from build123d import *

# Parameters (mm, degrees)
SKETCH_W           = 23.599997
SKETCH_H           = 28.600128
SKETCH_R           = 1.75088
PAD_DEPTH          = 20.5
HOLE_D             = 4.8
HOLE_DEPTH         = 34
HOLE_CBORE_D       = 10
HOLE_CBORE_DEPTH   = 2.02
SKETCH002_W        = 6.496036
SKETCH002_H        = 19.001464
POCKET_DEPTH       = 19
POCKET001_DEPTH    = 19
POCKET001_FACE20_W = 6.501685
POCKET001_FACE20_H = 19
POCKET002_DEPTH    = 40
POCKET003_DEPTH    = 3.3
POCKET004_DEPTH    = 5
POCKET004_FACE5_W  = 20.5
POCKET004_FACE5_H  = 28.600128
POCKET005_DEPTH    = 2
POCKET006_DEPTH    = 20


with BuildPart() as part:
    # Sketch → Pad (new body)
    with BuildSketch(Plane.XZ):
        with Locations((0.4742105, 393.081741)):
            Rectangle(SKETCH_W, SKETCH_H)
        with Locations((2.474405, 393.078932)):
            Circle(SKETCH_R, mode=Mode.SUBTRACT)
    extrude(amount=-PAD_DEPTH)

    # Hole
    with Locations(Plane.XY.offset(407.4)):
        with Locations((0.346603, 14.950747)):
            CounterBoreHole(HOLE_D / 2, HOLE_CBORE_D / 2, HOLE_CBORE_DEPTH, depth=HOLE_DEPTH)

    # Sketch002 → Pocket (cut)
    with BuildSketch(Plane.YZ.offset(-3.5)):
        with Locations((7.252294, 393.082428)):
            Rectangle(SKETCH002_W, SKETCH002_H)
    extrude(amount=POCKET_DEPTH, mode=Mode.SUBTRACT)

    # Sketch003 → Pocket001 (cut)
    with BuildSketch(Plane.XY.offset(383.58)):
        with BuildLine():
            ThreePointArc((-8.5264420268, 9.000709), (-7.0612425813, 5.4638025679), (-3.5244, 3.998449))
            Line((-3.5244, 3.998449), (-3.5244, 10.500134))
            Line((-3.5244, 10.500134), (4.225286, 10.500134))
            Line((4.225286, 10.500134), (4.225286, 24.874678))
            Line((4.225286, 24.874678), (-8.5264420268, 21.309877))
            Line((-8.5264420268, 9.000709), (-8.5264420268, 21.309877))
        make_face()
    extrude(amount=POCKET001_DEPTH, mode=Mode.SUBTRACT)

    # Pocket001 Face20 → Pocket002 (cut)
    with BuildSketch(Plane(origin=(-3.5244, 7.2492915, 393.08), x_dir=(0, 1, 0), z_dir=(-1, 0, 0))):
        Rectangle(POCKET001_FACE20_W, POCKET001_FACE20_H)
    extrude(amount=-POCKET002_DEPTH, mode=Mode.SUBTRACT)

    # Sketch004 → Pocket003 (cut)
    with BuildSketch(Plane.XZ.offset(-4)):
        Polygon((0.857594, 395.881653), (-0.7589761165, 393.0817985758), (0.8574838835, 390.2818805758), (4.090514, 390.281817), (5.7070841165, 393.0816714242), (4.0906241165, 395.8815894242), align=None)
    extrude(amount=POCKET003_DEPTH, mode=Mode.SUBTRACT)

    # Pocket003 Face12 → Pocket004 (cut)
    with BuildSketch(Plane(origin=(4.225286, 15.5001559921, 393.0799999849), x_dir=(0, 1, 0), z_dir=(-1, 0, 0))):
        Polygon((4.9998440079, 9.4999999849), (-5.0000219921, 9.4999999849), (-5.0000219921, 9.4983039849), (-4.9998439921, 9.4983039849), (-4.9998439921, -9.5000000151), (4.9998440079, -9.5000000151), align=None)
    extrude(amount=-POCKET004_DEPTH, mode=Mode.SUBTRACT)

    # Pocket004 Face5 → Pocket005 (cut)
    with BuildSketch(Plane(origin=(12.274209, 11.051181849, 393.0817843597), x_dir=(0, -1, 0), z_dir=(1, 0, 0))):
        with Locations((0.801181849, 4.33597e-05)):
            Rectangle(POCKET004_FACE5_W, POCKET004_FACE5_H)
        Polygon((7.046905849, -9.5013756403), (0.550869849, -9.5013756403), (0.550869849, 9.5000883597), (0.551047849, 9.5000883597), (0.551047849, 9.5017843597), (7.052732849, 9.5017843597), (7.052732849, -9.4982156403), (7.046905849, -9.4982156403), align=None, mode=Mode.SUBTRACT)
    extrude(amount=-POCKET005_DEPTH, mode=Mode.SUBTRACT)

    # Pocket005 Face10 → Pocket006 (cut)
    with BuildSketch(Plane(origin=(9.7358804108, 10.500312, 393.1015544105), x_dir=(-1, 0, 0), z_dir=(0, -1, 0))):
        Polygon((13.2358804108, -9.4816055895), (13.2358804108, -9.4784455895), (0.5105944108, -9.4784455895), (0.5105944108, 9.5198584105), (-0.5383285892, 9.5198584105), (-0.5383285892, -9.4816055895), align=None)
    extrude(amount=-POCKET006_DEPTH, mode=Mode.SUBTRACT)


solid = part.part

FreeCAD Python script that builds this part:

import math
import FreeCAD as App
import Part
import Sketcher

V = App.Vector

doc = App.newDocument("Part")
params = doc.addObject("Spreadsheet::Sheet", "Params")
for row, (alias, value) in enumerate([
    ("pad1_length", "20.5 mm"),
    ("sketch2_diameter", "4.8 mm"),
    ("hole_diameter", "4.8 mm"),
    ("hole_depth", "34 mm"),
    ("hole_cbore_diameter", "10 mm"),
    ("hole_cbore_depth", "2.02 mm"),
    ("pocket1_length", "19 mm"),
    ("pocket2_length", "19 mm"),
    ("sketch5_height", "19 mm"),
    ("pocket3_length", "40 mm"),
    ("pocket4_length", "3.3 mm"),
    ("sketch7_height", "19 mm"),
    ("pocket5_length", "5 mm"),
    ("sketch8_height", "19 mm"),
    ("sketch8_width", "20.5 mm"),
    ("pocket6_length", "2 mm"),
    ("pocket7_length", "20 mm"),
], start=1):
    params.set(f"A{row}", alias)
    params.set(f"B{row}", "=" + value)
    params.setAlias(f"B{row}", alias)

body = doc.addObject("PartDesign::Body", "Body")

# Sketch on XZ plane
sketch1 = body.newObject("Sketcher::SketchObject", "Sketch")
sketch1.AttachmentSupport = (doc.getObject("XZ_Plane"), [""])
sketch1.MapMode = "FlatFace"
sketch1.addGeometry(Part.LineSegment(V(-11.3, 407.4, 0), V(-11.3, 378.8, 0)), False)
sketch1.addGeometry(Part.LineSegment(V(-11.3, 378.8, 0), V(12.3, 378.8, 0)), False)
sketch1.addGeometry(Part.LineSegment(V(12.3, 378.8, 0), V(12.3, 407.4, 0)), False)
sketch1.addGeometry(Part.LineSegment(V(12.3, 407.4, 0), V(-11.3, 407.4, 0)), False)
sketch1.addGeometry(Part.Circle(V(2.5, 393.1, 0), V(0, 0, 1), 1.8), False)
sketch1.addConstraint(Sketcher.Constraint("Coincident", 0, 2, 1, 1))
sketch1.addConstraint(Sketcher.Constraint("Coincident", 1, 2, 2, 1))
sketch1.addConstraint(Sketcher.Constraint("Coincident", 2, 2, 3, 1))
sketch1.addConstraint(Sketcher.Constraint("Coincident", 3, 2, 0, 1))
sketch1.addConstraint(Sketcher.Constraint("Vertical", 0))
sketch1.addConstraint(Sketcher.Constraint("Horizontal", 1))
sketch1.addConstraint(Sketcher.Constraint("Vertical", 2))
sketch1.addConstraint(Sketcher.Constraint("Horizontal", 3))
sketch1.addConstraint(Sketcher.Constraint("Diameter", 4, 3.50176))
sketch1.addConstraint(Sketcher.Constraint("DistanceX", 1, 1, 1, 2, 23.599997))
sketch1.addConstraint(Sketcher.Constraint("DistanceY", 0, 2, 0, 1, 28.600128))
sketch1.addConstraint(Sketcher.Constraint("DistanceY", -1, 1, 4, 3, 393.078932))
sketch1.addConstraint(Sketcher.Constraint("DistanceX", -1, 1, 1, 2, 12.274209))
sketch1.addConstraint(Sketcher.Constraint("DistanceX", -1, 1, 4, 3, 2.474405))
sketch1.addConstraint(Sketcher.Constraint("DistanceY", -1, 1, 0, 2, 378.781677))
pad1 = body.newObject("PartDesign::Pad", "Pad")
pad1.Profile = sketch1
pad1.setExpression("Length", "Params.pad1_length")
pad1.Reversed = True

# Sketch on XY plane
sketch2 = body.newObject("Sketcher::SketchObject", "Sketch001")
sketch2.AttachmentSupport = (doc.getObject("XY_Plane"), [""])
sketch2.MapMode = "FlatFace"
sketch2.AttachmentOffset = App.Placement(V(0, 0, 407.4), App.Rotation())
sketch2.addGeometry(Part.Circle(V(0.3, 15, 0), V(0, 0, 1), 2.4), False)
sketch2.addConstraint(Sketcher.Constraint("Diameter", 0, 4.8))
sketch2.addConstraint(Sketcher.Constraint("DistanceX", -1, 1, 0, 3, 0.346603))
sketch2.addConstraint(Sketcher.Constraint("DistanceY", -1, 1, 0, 3, 14.950747))
sketch2.setExpression("Constraints[0]", "Params.sketch2_diameter")
doc.recompute()
hole = body.newObject("PartDesign::Hole", "Hole")
hole.Profile = sketch2
hole.ThreadType = "None"
hole.setExpression("Diameter", "Params.hole_diameter")
hole.DepthType = "Dimension"
hole.setExpression("Depth", "Params.hole_depth")
hole.DrillPoint = "Flat"
hole.HoleCutType = "Counterbore"
hole.setExpression("HoleCutDiameter", "Params.hole_cbore_diameter")
hole.setExpression("HoleCutDepth", "Params.hole_cbore_depth")

# Sketch on YZ plane
sketch3 = body.newObject("Sketcher::SketchObject", "Sketch002")
sketch3.AttachmentSupport = (doc.getObject("YZ_Plane"), [""])
sketch3.MapMode = "FlatFace"
sketch3.AttachmentOffset = App.Placement(V(0, 0, -3.5), App.Rotation())
sketch3.addGeometry(Part.LineSegment(V(4, 403, 0), V(4, 384, 0)), False)
sketch3.addGeometry(Part.LineSegment(V(4, 384, 0), V(11, 384, 0)), False)
sketch3.addGeometry(Part.LineSegment(V(11, 384, 0), V(11, 403, 0)), False)
sketch3.addGeometry(Part.LineSegment(V(11, 403, 0), V(4, 403, 0)), False)
sketch3.addConstraint(Sketcher.Constraint("Coincident", 0, 2, 1, 1))
sketch3.addConstraint(Sketcher.Constraint("Coincident", 1, 2, 2, 1))
sketch3.addConstraint(Sketcher.Constraint("Coincident", 2, 2, 3, 1))
sketch3.addConstraint(Sketcher.Constraint("Coincident", 3, 2, 0, 1))
sketch3.addConstraint(Sketcher.Constraint("Vertical", 0))
sketch3.addConstraint(Sketcher.Constraint("Horizontal", 1))
sketch3.addConstraint(Sketcher.Constraint("Vertical", 2))
sketch3.addConstraint(Sketcher.Constraint("Horizontal", 3))
sketch3.addConstraint(Sketcher.Constraint("DistanceX", 1, 1, 1, 2, 6.496036))
sketch3.addConstraint(Sketcher.Constraint("DistanceY", 0, 2, 0, 1, 19.001464))
sketch3.addConstraint(Sketcher.Constraint("DistanceX", -1, 1, 1, 2, 10.500312))
sketch3.addConstraint(Sketcher.Constraint("DistanceY", -1, 1, 2, 2, 402.58316))
pocket1 = body.newObject("PartDesign::Pocket", "Pocket")
pocket1.Profile = sketch3
pocket1.setExpression("Length", "Params.pocket1_length")
pocket1.Reversed = True

# Sketch on XY plane
sketch4 = body.newObject("Sketcher::SketchObject", "Sketch003")
sketch4.AttachmentSupport = (doc.getObject("XY_Plane"), [""])
sketch4.MapMode = "FlatFace"
sketch4.AttachmentOffset = App.Placement(V(0, 0, 383.58), App.Rotation())
sketch4.addGeometry(Part.ArcOfCircle(Part.Circle(V(-4, 9, 0), V(0, 0, 1), 5), math.radians(-180), math.radians(-90)), False)
sketch4.addGeometry(Part.LineSegment(V(-4, 4, 0), V(-4, 11, 0)), False)
sketch4.addGeometry(Part.LineSegment(V(-4, 11, 0), V(4, 11, 0)), False)
sketch4.addGeometry(Part.LineSegment(V(4, 11, 0), V(4, 25, 0)), False)
sketch4.addGeometry(Part.LineSegment(V(4, 25, 0), V(-9, 21, 0)), False)
sketch4.addGeometry(Part.LineSegment(V(-9, 21, 0), V(-9, 9, 0)), False)
sketch4.addConstraint(Sketcher.Constraint("Coincident", 0, 2, 1, 1))
sketch4.addConstraint(Sketcher.Constraint("Coincident", 1, 2, 2, 1))
sketch4.addConstraint(Sketcher.Constraint("Coincident", 2, 2, 3, 1))
sketch4.addConstraint(Sketcher.Constraint("Coincident", 3, 2, 4, 1))
sketch4.addConstraint(Sketcher.Constraint("Coincident", 4, 2, 5, 1))
sketch4.addConstraint(Sketcher.Constraint("Coincident", 5, 2, 0, 1))
sketch4.addConstraint(Sketcher.Constraint("Vertical", 1))
sketch4.addConstraint(Sketcher.Constraint("Horizontal", 2))
sketch4.addConstraint(Sketcher.Constraint("Vertical", 3))
sketch4.addConstraint(Sketcher.Constraint("Vertical", 5))
sketch4.addConstraint(Sketcher.Constraint("Radius", 0, 5.002767))
sketch4.addConstraint(Sketcher.Constraint("DistanceX", 0, 2, -1, 1, 3.5244))
sketch4.addConstraint(Sketcher.Constraint("DistanceY", 4, 2, 3, 2, 3.564801))
sketch4.addConstraint(Sketcher.Constraint("DistanceX", 2, 1, 2, 2, 7.749686))
sketch4.addConstraint(Sketcher.Constraint("DistanceY", 1, 1, 1, 2, 6.501685))
sketch4.addConstraint(Sketcher.Constraint("DistanceY", 3, 1, 3, 2, 14.374544))
sketch4.addConstraint(Sketcher.Constraint("DistanceY", 5, 2, 5, 1, 12.309168))
sketch4.addConstraint(Sketcher.Constraint("DistanceY", -1, 1, 0, 2, 3.998449))
sketch4.addConstraint(Sketcher.Constraint("DistanceX", 0, 3, 2, 2, 7.748961))
pocket2 = body.newObject("PartDesign::Pocket", "Pocket001")
pocket2.Profile = sketch4
pocket2.setExpression("Length", "Params.pocket2_length")
pocket2.Reversed = True

# Sketch on YZ plane
sketch5 = body.newObject("Sketcher::SketchObject", "Sketch004")
sketch5.AttachmentSupport = (doc.getObject("YZ_Plane"), [""])
sketch5.MapMode = "FlatFace"
sketch5.AttachmentOffset = App.Placement(V(0, 0, -3.5244), App.Rotation())
sketch5.addGeometry(Part.LineSegment(V(4, 384, 0), V(4, 403, 0)), False)
sketch5.addGeometry(Part.LineSegment(V(4, 403, 0), V(11, 403, 0)), False)
sketch5.addGeometry(Part.LineSegment(V(11, 403, 0), V(11, 384, 0)), False)
sketch5.addGeometry(Part.LineSegment(V(11, 384, 0), V(4, 384, 0)), False)
sketch5.addConstraint(Sketcher.Constraint("Coincident", 0, 2, 1, 1))
sketch5.addConstraint(Sketcher.Constraint("Coincident", 1, 2, 2, 1))
sketch5.addConstraint(Sketcher.Constraint("Coincident", 2, 2, 3, 1))
sketch5.addConstraint(Sketcher.Constraint("Coincident", 3, 2, 0, 1))
sketch5.addConstraint(Sketcher.Constraint("Vertical", 0))
sketch5.addConstraint(Sketcher.Constraint("Horizontal", 1))
sketch5.addConstraint(Sketcher.Constraint("Vertical", 2))
sketch5.addConstraint(Sketcher.Constraint("Horizontal", 3))
sketch5.addConstraint(Sketcher.Constraint("DistanceY", 0, 1, 0, 2, 19.0))
sketch5.addConstraint(Sketcher.Constraint("DistanceY", -1, 1, 0, 2, 402.58))
sketch5.addConstraint(Sketcher.Constraint("DistanceX", 1, 1, 1, 2, 6.501685))
sketch5.addConstraint(Sketcher.Constraint("DistanceX", -1, 1, 0, 2, 3.998449))
sketch5.setExpression("Constraints[8]", "Params.sketch5_height")
pocket3 = body.newObject("PartDesign::Pocket", "Pocket002")
pocket3.Profile = sketch5
pocket3.setExpression("Length", "Params.pocket3_length")
pocket3.Reversed = True

# Sketch on XZ plane
sketch6 = body.newObject("Sketcher::SketchObject", "Sketch005")
sketch6.AttachmentSupport = (doc.getObject("XZ_Plane"), [""])
sketch6.MapMode = "FlatFace"
sketch6.AttachmentOffset = App.Placement(V(0, 0, -4), App.Rotation())
sketch6.addGeometry(Part.LineSegment(V(0.9, 395.9, 0), V(-0.8, 393.1, 0)), False)
sketch6.addGeometry(Part.LineSegment(V(-0.8, 393.1, 0), V(0.9, 390.3, 0)), False)
sketch6.addGeometry(Part.LineSegment(V(0.9, 390.3, 0), V(4.1, 390.3, 0)), False)
sketch6.addGeometry(Part.LineSegment(V(4.1, 390.3, 0), V(5.7, 393.1, 0)), False)
sketch6.addGeometry(Part.LineSegment(V(5.7, 393.1, 0), V(4.1, 395.9, 0)), False)
sketch6.addGeometry(Part.LineSegment(V(4.1, 395.9, 0), V(0.9, 395.9, 0)), False)
sketch6.addConstraint(Sketcher.Constraint("Coincident", 0, 2, 1, 1))
sketch6.addConstraint(Sketcher.Constraint("Coincident", 1, 2, 2, 1))
sketch6.addConstraint(Sketcher.Constraint("Coincident", 2, 2, 3, 1))
sketch6.addConstraint(Sketcher.Constraint("Coincident", 3, 2, 4, 1))
sketch6.addConstraint(Sketcher.Constraint("Coincident", 4, 2, 5, 1))
sketch6.addConstraint(Sketcher.Constraint("Coincident", 5, 2, 0, 1))
sketch6.addConstraint(Sketcher.Constraint("Parallel", 0, 3))
sketch6.addConstraint(Sketcher.Constraint("Parallel", 1, 4))
sketch6.addConstraint(Sketcher.Constraint("Parallel", 2, 5))
sketch6.addConstraint(Sketcher.Constraint("Equal", 0, 1))
sketch6.addConstraint(Sketcher.Constraint("Equal", 1, 2))
sketch6.addConstraint(Sketcher.Constraint("Equal", 2, 3))
sketch6.addConstraint(Sketcher.Constraint("DistanceY", -1, 1, 0, 2, 393.081799))
sketch6.addConstraint(Sketcher.Constraint("DistanceX", 1, 2, 3, 2, 4.8496))
sketch6.addConstraint(Sketcher.Constraint("Distance", 0, 3.23303))
sketch6.addConstraint(Sketcher.Constraint("DistanceY", -1, 1, 1, 2, 390.281881))
sketch6.addConstraint(Sketcher.Constraint("DistanceY", -1, 1, 3, 2, 393.081671))
sketch6.addConstraint(Sketcher.Constraint("DistanceX", 0, 2, -1, 1, 0.758976))
pocket4 = body.newObject("PartDesign::Pocket", "Pocket003")
pocket4.Profile = sketch6
pocket4.setExpression("Length", "Params.pocket4_length")
pocket4.Reversed = True

# Sketch on YZ plane
sketch7 = body.newObject("Sketcher::SketchObject", "Sketch006")
sketch7.AttachmentSupport = (doc.getObject("YZ_Plane"), [""])
sketch7.MapMode = "FlatFace"
sketch7.AttachmentOffset = App.Placement(V(0, 0, 4.225286), App.Rotation())
sketch7.addGeometry(Part.LineSegment(V(20.5, 383.58, 0), V(10.50013, 383.58, 0)), False)
sketch7.addGeometry(Part.LineSegment(V(10.50013, 383.58, 0), V(10.50013, 383.5817, 0)), False)
sketch7.addGeometry(Part.LineSegment(V(10.50013, 383.5817, 0), V(10.50031, 383.5817, 0)), False)
sketch7.addGeometry(Part.LineSegment(V(10.50031, 383.5817, 0), V(10.50031, 402.58, 0)), False)
sketch7.addGeometry(Part.LineSegment(V(10.50031, 402.58, 0), V(20.5, 402.58, 0)), False)
sketch7.addGeometry(Part.LineSegment(V(20.5, 402.58, 0), V(20.5, 383.58, 0)), False)
sketch7.addConstraint(Sketcher.Constraint("Coincident", 0, 2, 1, 1))
sketch7.addConstraint(Sketcher.Constraint("Coincident", 1, 2, 2, 1))
sketch7.addConstraint(Sketcher.Constraint("Coincident", 2, 2, 3, 1))
sketch7.addConstraint(Sketcher.Constraint("Coincident", 3, 2, 4, 1))
sketch7.addConstraint(Sketcher.Constraint("Coincident", 4, 2, 5, 1))
sketch7.addConstraint(Sketcher.Constraint("Coincident", 5, 2, 0, 1))
sketch7.addConstraint(Sketcher.Constraint("Horizontal", 0))
sketch7.addConstraint(Sketcher.Constraint("Vertical", 1))
sketch7.addConstraint(Sketcher.Constraint("Horizontal", 2))
sketch7.addConstraint(Sketcher.Constraint("Vertical", 3))
sketch7.addConstraint(Sketcher.Constraint("Horizontal", 4))
sketch7.addConstraint(Sketcher.Constraint("Vertical", 5))
sketch7.addConstraint(Sketcher.Constraint("DistanceY", 5, 2, 5, 1, 19.0))
sketch7.addConstraint(Sketcher.Constraint("DistanceX", -1, 1, 4, 2, 20.5))
sketch7.addConstraint(Sketcher.Constraint("DistanceY", -1, 1, 0, 2, 383.58))
sketch7.addConstraint(Sketcher.Constraint("DistanceX", 2, 1, 2, 2, 0.000178))
sketch7.addConstraint(Sketcher.Constraint("DistanceX", 4, 1, 4, 2, 9.999688))
sketch7.addConstraint(Sketcher.Constraint("DistanceY", 1, 1, 1, 2, 0.001696))
sketch7.setExpression("Constraints[12]", "Params.sketch7_height")
pocket5 = body.newObject("PartDesign::Pocket", "Pocket004")
pocket5.Profile = sketch7
pocket5.setExpression("Length", "Params.pocket5_length")
pocket5.Reversed = True

# Sketch on YZ plane
sketch8 = body.newObject("Sketcher::SketchObject", "Sketch007")
sketch8.AttachmentSupport = (doc.getObject("YZ_Plane"), [""])
sketch8.MapMode = "FlatFace"
sketch8.AttachmentOffset = App.Placement(V(0, 0, 12.274209), App.Rotation())
sketch8.addGeometry(Part.LineSegment(V(20.5, 378.78168, 0), V(20.5, 407.3818, 0)), False)
sketch8.addGeometry(Part.LineSegment(V(20.5, 407.3818, 0), V(0, 407.3818, 0)), False)
sketch8.addGeometry(Part.LineSegment(V(0, 407.3818, 0), V(0, 378.78168, 0)), False)
sketch8.addGeometry(Part.LineSegment(V(0, 378.78168, 0), V(20.5, 378.78168, 0)), False)
sketch8.addGeometry(Part.LineSegment(V(4.00428, 402.58, 0), V(4.00428, 402.58316, 0)), False)
sketch8.addGeometry(Part.LineSegment(V(4.00428, 402.58316, 0), V(10.50031, 402.58316, 0)), False)
sketch8.addGeometry(Part.LineSegment(V(10.50031, 402.58316, 0), V(10.50031, 383.5817, 0)), False)
sketch8.addGeometry(Part.LineSegment(V(10.50031, 383.5817, 0), V(10.50013, 383.5817, 0)), False)
sketch8.addGeometry(Part.LineSegment(V(10.50013, 383.5817, 0), V(10.50013, 383.58, 0)), False)
sketch8.addGeometry(Part.LineSegment(V(10.50013, 383.58, 0), V(3.99845, 383.58, 0)), False)
sketch8.addGeometry(Part.LineSegment(V(3.99845, 383.58, 0), V(3.99845, 402.58, 0)), False)
sketch8.addGeometry(Part.LineSegment(V(3.99845, 402.58, 0), V(4.00428, 402.58, 0)), False)
sketch8.addConstraint(Sketcher.Constraint("Coincident", 0, 2, 1, 1))
sketch8.addConstraint(Sketcher.Constraint("Coincident", 1, 2, 2, 1))
sketch8.addConstraint(Sketcher.Constraint("Coincident", 2, 2, 3, 1))
sketch8.addConstraint(Sketcher.Constraint("Coincident", 3, 2, 0, 1))
sketch8.addConstraint(Sketcher.Constraint("Coincident", 4, 2, 5, 1))
sketch8.addConstraint(Sketcher.Constraint("Coincident", 5, 2, 6, 1))
sketch8.addConstraint(Sketcher.Constraint("Coincident", 6, 2, 7, 1))
sketch8.addConstraint(Sketcher.Constraint("Coincident", 7, 2, 8, 1))
sketch8.addConstraint(Sketcher.Constraint("Coincident", 8, 2, 9, 1))
sketch8.addConstraint(Sketcher.Constraint("Coincident", 9, 2, 10, 1))
sketch8.addConstraint(Sketcher.Constraint("Coincident", 10, 2, 11, 1))
sketch8.addConstraint(Sketcher.Constraint("Coincident", 11, 2, 4, 1))
sketch8.addConstraint(Sketcher.Constraint("Vertical", 0))
sketch8.addConstraint(Sketcher.Constraint("Horizontal", 1))
sketch8.addConstraint(Sketcher.Constraint("Vertical", 2))
sketch8.addConstraint(Sketcher.Constraint("Horizontal", 3))
sketch8.addConstraint(Sketcher.Constraint("Vertical", 4))
sketch8.addConstraint(Sketcher.Constraint("Horizontal", 5))
sketch8.addConstraint(Sketcher.Constraint("Vertical", 6))
sketch8.addConstraint(Sketcher.Constraint("Horizontal", 7))
sketch8.addConstraint(Sketcher.Constraint("Vertical", 8))
sketch8.addConstraint(Sketcher.Constraint("Horizontal", 9))
sketch8.addConstraint(Sketcher.Constraint("Vertical", 10))
sketch8.addConstraint(Sketcher.Constraint("Horizontal", 11))
sketch8.addConstraint(Sketcher.Constraint("PointOnObject", 1, 2, -2))
sketch8.addConstraint(Sketcher.Constraint("DistanceY", 10, 1, 10, 2, 19.0))
sketch8.addConstraint(Sketcher.Constraint("DistanceX", 1, 2, 1, 1, 20.5))
sketch8.addConstraint(Sketcher.Constraint("DistanceY", -1, 1, 8, 2, 383.58))
sketch8.addConstraint(Sketcher.Constraint("DistanceX", 7, 2, 7, 1, 0.000178))
sketch8.addConstraint(Sketcher.Constraint("DistanceY", 4, 1, 4, 2, 0.00316))
sketch8.addConstraint(Sketcher.Constraint("DistanceX", 5, 1, 5, 2, 6.496036))
sketch8.addConstraint(Sketcher.Constraint("DistanceX", 9, 2, 9, 1, 6.501685))
sketch8.addConstraint(Sketcher.Constraint("DistanceY", 0, 1, 0, 2, 28.600128))
sketch8.addConstraint(Sketcher.Constraint("DistanceY", 6, 2, 6, 1, 19.001464))
sketch8.addConstraint(Sketcher.Constraint("DistanceX", -1, 1, 5, 2, 10.500312))
sketch8.addConstraint(Sketcher.Constraint("DistanceY", 3, 2, 6, 2, 4.800019))
sketch8.setExpression("Constraints[25]", "Params.sketch8_height")
sketch8.setExpression("Constraints[26]", "Params.sketch8_width")
pocket6 = body.newObject("PartDesign::Pocket", "Pocket005")
pocket6.Profile = sketch8
pocket6.setExpression("Length", "Params.pocket6_length")

# Sketch on XZ plane
sketch9 = body.newObject("Sketcher::SketchObject", "Sketch008")
sketch9.AttachmentSupport = (doc.getObject("XZ_Plane"), [""])
sketch9.MapMode = "FlatFace"
sketch9.AttachmentOffset = App.Placement(V(0, 0, -10.500312), App.Rotation())
sketch9.addGeometry(Part.LineSegment(V(-3.5, 402.5832, 0), V(-3.5, 402.58, 0)), False)
sketch9.addGeometry(Part.LineSegment(V(-3.5, 402.58, 0), V(9.2253, 402.58, 0)), False)
sketch9.addGeometry(Part.LineSegment(V(9.2253, 402.58, 0), V(9.2253, 383.5817, 0)), False)
sketch9.addGeometry(Part.LineSegment(V(9.2253, 383.5817, 0), V(10.2742, 383.5817, 0)), False)
sketch9.addGeometry(Part.LineSegment(V(10.2742, 383.5817, 0), V(10.2742, 402.5832, 0)), False)
sketch9.addGeometry(Part.LineSegment(V(10.2742, 402.5832, 0), V(-3.5, 402.5832, 0)), False)
sketch9.addConstraint(Sketcher.Constraint("Coincident", 0, 2, 1, 1))
sketch9.addConstraint(Sketcher.Constraint("Coincident", 1, 2, 2, 1))
sketch9.addConstraint(Sketcher.Constraint("Coincident", 2, 2, 3, 1))
sketch9.addConstraint(Sketcher.Constraint("Coincident", 3, 2, 4, 1))
sketch9.addConstraint(Sketcher.Constraint("Coincident", 4, 2, 5, 1))
sketch9.addConstraint(Sketcher.Constraint("Coincident", 5, 2, 0, 1))
sketch9.addConstraint(Sketcher.Constraint("Vertical", 0))
sketch9.addConstraint(Sketcher.Constraint("Horizontal", 1))
sketch9.addConstraint(Sketcher.Constraint("Vertical", 2))
sketch9.addConstraint(Sketcher.Constraint("Horizontal", 3))
sketch9.addConstraint(Sketcher.Constraint("Vertical", 4))
sketch9.addConstraint(Sketcher.Constraint("Horizontal", 5))
sketch9.addConstraint(Sketcher.Constraint("DistanceX", 0, 2, -1, 1, 3.5))
sketch9.addConstraint(Sketcher.Constraint("DistanceY", -1, 1, 0, 2, 402.58))
sketch9.addConstraint(Sketcher.Constraint("DistanceX", 5, 2, 5, 1, 13.774209))
sketch9.addConstraint(Sketcher.Constraint("DistanceY", 0, 2, 0, 1, 0.00316))
sketch9.addConstraint(Sketcher.Constraint("DistanceX", 1, 1, 1, 2, 12.725286))
sketch9.addConstraint(Sketcher.Constraint("DistanceY", 2, 2, 2, 1, 18.998304))
pocket7 = body.newObject("PartDesign::Pocket", "Pocket006")
pocket7.Profile = sketch9
pocket7.setExpression("Length", "Params.pocket7_length")

doc.recompute()
